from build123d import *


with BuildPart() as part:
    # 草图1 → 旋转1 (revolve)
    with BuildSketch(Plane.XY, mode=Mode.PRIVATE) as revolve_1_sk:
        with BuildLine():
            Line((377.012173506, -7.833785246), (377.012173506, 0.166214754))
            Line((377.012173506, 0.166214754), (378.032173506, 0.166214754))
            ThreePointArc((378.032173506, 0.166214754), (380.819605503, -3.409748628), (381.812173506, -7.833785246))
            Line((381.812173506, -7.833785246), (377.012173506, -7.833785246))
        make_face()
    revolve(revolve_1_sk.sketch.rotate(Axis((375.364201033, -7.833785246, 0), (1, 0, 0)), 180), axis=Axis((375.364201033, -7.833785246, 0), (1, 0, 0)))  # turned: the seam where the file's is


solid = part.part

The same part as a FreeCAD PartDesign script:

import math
import FreeCAD as App
import Part
import Sketcher
from FreeCAD import Vector

doc = App.newDocument("Part")
body = doc.addObject("PartDesign::Body", "Body")

sketch1 = body.newObject("Sketcher::SketchObject", "Sketch")
sketch1.AttachmentSupport = (doc.getObject("XY_Plane"), [""])
sketch1.MapMode = "FlatFace"
sketch1.addGeometry([
    Part.LineSegment(Vector(377.012174, 0.166215, 0), Vector(377.012174, -7.833785, 0)),
    Part.LineSegment(Vector(377.012174, -7.833785, 0), Vector(381.812174, -7.833785, 0)),
    Part.ArcOfCircle(Part.Circle(Vector(371.456565, -7.833785, 0), Vector(0, 0, 1), 10.355608), math.radians(0), math.radians(50.581469)),
    Part.LineSegment(Vector(378.032174, 0.166215, 0), Vector(377.012174, 0.166215, 0)),
], False)
sketch1.addGeometry(Part.LineSegment(Vector(371.456565, -7.833785, 0), Vector(381.812174, -7.833785, 0)), True)
sketch1.addConstraint([
    Sketcher.Constraint("Coincident", 0, 2, 1, 1),
    Sketcher.Constraint("Coincident", 1, 2, 2, 1),
    Sketcher.Constraint("Coincident", 2, 2, 3, 1),
    Sketcher.Constraint("Coincident", 3, 2, 0, 1),
    Sketcher.Constraint("Vertical", 0),
    Sketcher.Constraint("Horizontal", 1),
    Sketcher.Constraint("Horizontal", 3),
    Sketcher.Constraint("Horizontal", 4),
    Sketcher.Constraint("Coincident", 4, 1, 2, 3),
    Sketcher.Constraint("Coincident", 4, 2, 1, 2),
    Sketcher.Constraint("DistanceY", 0, 2, 0, 1, 8.0),
    Sketcher.Constraint("DistanceX", 1, 1, 1, 2, 4.8),
    Sketcher.Constraint("DistanceX", 3, 2, 3, 1, 1.02),
    Sketcher.Constraint("DistanceX", -1, 1, 2, 3, 371.456565),
    Sketcher.Constraint("DistanceY", 2, 3, -1, 1, 7.833785),
])
revolution = body.newObject("PartDesign::Revolution", "Revolution")
revolution.Profile = sketch1
revolution.ReferenceAxis = (sketch1, ["Axis0"])
revolution.Angle = 360

doc.recompute()
